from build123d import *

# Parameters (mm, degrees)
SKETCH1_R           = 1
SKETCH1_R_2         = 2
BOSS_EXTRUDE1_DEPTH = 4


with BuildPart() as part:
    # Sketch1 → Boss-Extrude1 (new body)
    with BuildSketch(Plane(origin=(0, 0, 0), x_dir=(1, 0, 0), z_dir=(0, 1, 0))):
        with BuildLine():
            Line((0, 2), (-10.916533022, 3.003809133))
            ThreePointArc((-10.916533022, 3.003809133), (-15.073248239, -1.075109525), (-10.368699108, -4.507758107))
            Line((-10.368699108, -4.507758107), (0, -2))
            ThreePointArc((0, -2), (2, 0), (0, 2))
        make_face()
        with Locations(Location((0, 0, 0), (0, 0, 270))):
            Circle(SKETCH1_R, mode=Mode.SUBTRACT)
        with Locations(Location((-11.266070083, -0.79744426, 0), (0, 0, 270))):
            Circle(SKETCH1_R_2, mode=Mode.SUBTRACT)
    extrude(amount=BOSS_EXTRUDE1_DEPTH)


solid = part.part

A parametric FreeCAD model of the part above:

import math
import FreeCAD as App
import Part
import Sketcher
from FreeCAD import Vector
Q = App.Units.Quantity

doc = App.newDocument("Part")
body = doc.addObject("PartDesign::Body", "Body")

# Sketch on XZ plane
sketch1 = doc.addObject("Sketcher::SketchObject", "Sketch")
body.addObject(sketch1)
sketch1.AttachmentSupport = (doc.XZ_Plane, [""])
sketch1.MapMode = "FlatFace"
sketch1.addGeometry([
    Part.LineSegment(Vector(0, -2, 0), Vector(-10.9, -3, 0)),  # 0
    Part.ArcOfCircle(Part.Circle(Vector(-11.3, 0.8, 0), Vector(0, 0, 1), 3.8), math.radians(76), math.radians(275)),  # 1
    Part.LineSegment(Vector(-10.4, 4.5, 0), Vector(0, 2, 0)),  # 2
    Part.ArcOfCircle(Part.Circle(Vector(0, 0, 0), Vector(0, 0, 1), 2), math.radians(-90), math.radians(90)),  # 3
    Part.Circle(Vector(-11.3, 0.8, 0), Vector(0, 0, 1), 2),  # 4
    Part.Circle(Vector(0, 0, 0), Vector(0, 0, 1), 1),  # 5
], False)
sketch1.addConstraint([
    Sketcher.Constraint("Tangent", 0, 2, 1, 2),
    Sketcher.Constraint("Tangent", 1, 1, 2, 1),
    Sketcher.Constraint("Coincident", 2, 2, 3, 2),
    Sketcher.Constraint("Coincident", 3, 1, 0, 1),
    Sketcher.Constraint("Coincident", 3, 3, -1, 1),
    Sketcher.Constraint("Coincident", 5, 3, -1, 1),
    Sketcher.Constraint("Coincident", 4, 3, 1, 3),
    Sketcher.Constraint("Equal", 3, 4),
    Sketcher.Constraint("PointOnObject", 2, 2, -2),
    Sketcher.Constraint("PointOnObject", 3, 1, -2),
    Sketcher.Constraint("Diameter", 4, Q("4 mm")),
    Sketcher.Constraint("Diameter", 5, Q("2 mm")),
    Sketcher.Constraint("Radius", 1, Q("3.81729 mm")),
    Sketcher.Constraint("DistanceX", 1, 1, -1, 1, Q("10.368699 mm")),
    Sketcher.Constraint("Distance", 2, Q("10.667651 mm")),
])
pad1 = doc.addObject("PartDesign::Pad", "Pad")
body.addObject(pad1)
pad1.Profile = sketch1
pad1.Length = 4
pad1.Reversed = True

doc.recompute()
